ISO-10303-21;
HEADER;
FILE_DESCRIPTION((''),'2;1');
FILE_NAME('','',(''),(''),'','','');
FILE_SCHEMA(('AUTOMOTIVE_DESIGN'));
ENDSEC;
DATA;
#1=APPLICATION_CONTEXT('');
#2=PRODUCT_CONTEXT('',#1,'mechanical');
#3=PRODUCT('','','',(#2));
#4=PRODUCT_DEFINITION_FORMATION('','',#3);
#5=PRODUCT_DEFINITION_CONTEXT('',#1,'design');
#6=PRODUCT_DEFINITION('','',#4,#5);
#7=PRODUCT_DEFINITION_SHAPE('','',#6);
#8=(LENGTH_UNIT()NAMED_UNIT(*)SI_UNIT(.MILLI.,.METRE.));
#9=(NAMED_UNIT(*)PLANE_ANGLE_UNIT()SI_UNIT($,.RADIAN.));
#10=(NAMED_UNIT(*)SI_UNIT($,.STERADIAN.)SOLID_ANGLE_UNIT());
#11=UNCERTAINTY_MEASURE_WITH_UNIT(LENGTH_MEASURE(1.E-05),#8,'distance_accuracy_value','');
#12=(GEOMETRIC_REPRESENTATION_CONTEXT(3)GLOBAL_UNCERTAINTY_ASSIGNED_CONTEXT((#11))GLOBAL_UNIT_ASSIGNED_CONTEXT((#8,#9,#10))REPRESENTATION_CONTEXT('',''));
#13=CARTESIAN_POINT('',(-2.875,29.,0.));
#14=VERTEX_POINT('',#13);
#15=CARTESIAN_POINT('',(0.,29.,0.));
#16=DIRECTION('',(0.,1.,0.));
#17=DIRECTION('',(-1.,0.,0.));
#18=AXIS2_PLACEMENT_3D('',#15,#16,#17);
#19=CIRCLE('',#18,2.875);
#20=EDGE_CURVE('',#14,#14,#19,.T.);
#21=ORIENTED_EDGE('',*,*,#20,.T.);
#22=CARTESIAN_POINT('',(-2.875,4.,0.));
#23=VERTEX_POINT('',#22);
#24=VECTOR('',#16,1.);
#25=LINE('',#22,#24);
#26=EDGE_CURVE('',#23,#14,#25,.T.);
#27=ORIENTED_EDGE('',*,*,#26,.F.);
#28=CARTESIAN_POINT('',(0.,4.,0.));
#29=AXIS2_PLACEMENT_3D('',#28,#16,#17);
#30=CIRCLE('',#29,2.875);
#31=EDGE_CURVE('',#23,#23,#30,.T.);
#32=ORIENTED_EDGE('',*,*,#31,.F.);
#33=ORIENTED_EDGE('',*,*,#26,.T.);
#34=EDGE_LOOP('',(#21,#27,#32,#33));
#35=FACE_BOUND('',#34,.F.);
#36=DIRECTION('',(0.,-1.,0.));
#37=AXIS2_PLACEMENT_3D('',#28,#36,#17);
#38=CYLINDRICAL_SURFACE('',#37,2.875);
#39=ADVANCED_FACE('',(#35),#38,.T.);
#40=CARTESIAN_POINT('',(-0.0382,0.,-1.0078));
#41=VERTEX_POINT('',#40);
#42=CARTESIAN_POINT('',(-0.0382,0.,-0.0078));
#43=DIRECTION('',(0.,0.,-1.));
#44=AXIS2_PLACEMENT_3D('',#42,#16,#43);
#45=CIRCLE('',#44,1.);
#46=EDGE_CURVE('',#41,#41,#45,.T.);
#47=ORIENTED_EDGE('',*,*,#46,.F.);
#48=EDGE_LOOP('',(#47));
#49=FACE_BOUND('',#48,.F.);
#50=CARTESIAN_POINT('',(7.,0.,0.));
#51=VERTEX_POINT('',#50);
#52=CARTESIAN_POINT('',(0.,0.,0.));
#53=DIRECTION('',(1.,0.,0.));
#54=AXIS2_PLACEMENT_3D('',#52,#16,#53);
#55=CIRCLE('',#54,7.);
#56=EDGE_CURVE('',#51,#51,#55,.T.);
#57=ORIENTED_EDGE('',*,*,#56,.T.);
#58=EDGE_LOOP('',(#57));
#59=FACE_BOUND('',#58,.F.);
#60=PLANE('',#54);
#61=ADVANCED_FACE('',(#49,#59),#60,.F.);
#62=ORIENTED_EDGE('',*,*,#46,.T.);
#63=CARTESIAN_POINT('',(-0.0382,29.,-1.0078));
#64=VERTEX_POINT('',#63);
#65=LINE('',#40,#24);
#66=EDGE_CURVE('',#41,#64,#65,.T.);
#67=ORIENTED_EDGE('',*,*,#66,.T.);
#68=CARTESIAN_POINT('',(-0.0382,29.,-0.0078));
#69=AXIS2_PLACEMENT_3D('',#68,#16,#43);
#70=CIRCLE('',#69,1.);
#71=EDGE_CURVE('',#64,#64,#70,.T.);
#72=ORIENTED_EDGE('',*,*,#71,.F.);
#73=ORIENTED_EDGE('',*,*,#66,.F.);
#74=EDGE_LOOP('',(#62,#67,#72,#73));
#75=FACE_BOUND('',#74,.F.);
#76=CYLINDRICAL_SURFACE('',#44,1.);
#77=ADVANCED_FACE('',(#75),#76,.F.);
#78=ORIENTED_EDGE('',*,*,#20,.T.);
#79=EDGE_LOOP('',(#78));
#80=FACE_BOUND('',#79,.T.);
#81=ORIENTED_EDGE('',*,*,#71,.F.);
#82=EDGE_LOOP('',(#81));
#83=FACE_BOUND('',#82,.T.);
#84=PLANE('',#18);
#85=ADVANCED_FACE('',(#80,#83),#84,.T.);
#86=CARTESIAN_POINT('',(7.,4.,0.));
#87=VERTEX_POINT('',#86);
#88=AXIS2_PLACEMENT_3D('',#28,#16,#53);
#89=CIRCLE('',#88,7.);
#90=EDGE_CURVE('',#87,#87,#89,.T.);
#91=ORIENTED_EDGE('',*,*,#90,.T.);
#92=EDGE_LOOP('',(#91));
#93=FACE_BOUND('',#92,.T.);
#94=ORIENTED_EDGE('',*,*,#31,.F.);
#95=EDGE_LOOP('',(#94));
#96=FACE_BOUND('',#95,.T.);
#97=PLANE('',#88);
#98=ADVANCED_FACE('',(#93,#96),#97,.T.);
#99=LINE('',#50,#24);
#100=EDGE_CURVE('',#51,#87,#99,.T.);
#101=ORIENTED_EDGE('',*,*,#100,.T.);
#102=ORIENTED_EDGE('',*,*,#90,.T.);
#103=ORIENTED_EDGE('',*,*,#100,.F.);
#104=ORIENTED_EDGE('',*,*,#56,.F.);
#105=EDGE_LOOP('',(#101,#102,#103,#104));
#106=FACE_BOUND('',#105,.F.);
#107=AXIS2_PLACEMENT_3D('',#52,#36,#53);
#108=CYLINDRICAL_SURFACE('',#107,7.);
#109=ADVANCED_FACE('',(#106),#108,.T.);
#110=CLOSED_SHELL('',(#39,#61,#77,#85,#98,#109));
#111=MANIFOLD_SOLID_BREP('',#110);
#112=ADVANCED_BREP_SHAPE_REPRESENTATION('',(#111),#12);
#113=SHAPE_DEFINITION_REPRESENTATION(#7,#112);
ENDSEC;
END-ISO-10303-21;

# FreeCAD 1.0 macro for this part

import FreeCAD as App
import Part
import Sketcher
from FreeCAD import Vector
Q = App.Units.Quantity

doc = App.newDocument("Part")
body = doc.addObject("PartDesign::Body", "Body")

# Sketch on XZ plane
sketch1 = body.newObject("Sketcher::SketchObject", "Sketch")
sketch1.AttachmentSupport = (doc.getObject("XZ_Plane"), [""])
sketch1.MapMode = "FlatFace"
sketch1.addGeometry(Part.Circle(Vector(0, 0, 0), Vector(0, 0, 1), 7), False)
sketch1.addConstraint(Sketcher.Constraint("Coincident", 0, 3, -1, 1))
sketch1.addConstraint(Sketcher.Constraint("Diameter", 0, Q("14 mm")))
pad1 = body.newObject("PartDesign::Pad", "Pad")
pad1.Profile = sketch1
pad1.Length = 4
pad1.Reversed = True

# Sketch on XZ plane
sketch2 = body.newObject("Sketcher::SketchObject", "Sketch001")
sketch2.AttachmentSupport = (doc.getObject("XZ_Plane"), [""])
sketch2.MapMode = "FlatFace"
sketch2.AttachmentOffset = App.Placement(Vector(0, 0, -4), App.Rotation())
sketch2.addGeometry(Part.Circle(Vector(0, 0, 0), Vector(0, 0, 1), 2.9), False)
sketch2.addConstraint(Sketcher.Constraint("Coincident", 0, 3, -1, 1))
sketch2.addConstraint(Sketcher.Constraint("Diameter", 0, Q("5.75 mm")))
pad2 = body.newObject("PartDesign::Pad", "Pad001")
pad2.Profile = sketch2
pad2.Length = 25
pad2.Reversed = True

# Sketch on XZ plane
sketch3 = body.newObject("Sketcher::SketchObject", "Sketch002")
sketch3.AttachmentSupport = (doc.getObject("XZ_Plane"), [""])
sketch3.MapMode = "FlatFace"
sketch3.addGeometry(Part.Circle(Vector(0, 0, 0), Vector(0, 0, 1), 1), False)
sketch3.addConstraint(Sketcher.Constraint("Diameter", 0, Q("2 mm")))
sketch3.addConstraint(Sketcher.Constraint("DistanceX", 0, 3, -1, 1, Q("0.0382 mm")))
sketch3.addConstraint(Sketcher.Constraint("DistanceY", 0, 3, -1, 1, Q("0.0078 mm")))
doc.recompute()
hole = body.newObject("PartDesign::Hole", "Hole")
hole.Profile = sketch3
hole.ThreadType = "None"
hole.Diameter = 2
hole.DepthType = "ThroughAll"

doc.recompute()
